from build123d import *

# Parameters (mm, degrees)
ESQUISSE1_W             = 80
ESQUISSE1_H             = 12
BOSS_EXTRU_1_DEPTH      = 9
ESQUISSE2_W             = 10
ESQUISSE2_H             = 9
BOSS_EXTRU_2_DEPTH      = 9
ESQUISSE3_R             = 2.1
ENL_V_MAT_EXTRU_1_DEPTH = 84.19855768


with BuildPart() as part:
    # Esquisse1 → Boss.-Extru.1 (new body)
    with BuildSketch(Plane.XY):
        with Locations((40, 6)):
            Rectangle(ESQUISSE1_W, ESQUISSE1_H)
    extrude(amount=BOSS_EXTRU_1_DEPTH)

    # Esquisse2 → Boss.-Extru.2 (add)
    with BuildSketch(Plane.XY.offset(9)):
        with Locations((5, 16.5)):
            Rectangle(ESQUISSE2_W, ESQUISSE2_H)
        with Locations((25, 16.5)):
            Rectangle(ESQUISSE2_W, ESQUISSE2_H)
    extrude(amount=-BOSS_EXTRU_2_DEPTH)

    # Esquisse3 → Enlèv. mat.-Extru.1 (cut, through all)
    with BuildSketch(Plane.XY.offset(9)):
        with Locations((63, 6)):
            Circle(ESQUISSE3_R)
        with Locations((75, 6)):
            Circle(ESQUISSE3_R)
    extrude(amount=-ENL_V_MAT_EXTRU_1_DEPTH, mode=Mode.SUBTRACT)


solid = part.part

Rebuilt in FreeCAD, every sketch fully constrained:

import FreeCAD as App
import Part
import Sketcher

V = App.Vector
Q = App.Units.Quantity


def add_polygon(sketch, points):
    """Adds a closed chain of lines whose ends are joined by coincident constraints."""
    first, n = sketch.GeometryCount, len(points)
    for a, b in zip(points, points[1:] + points[:1]):
        sketch.addGeometry(Part.LineSegment(App.Vector(*a, 0), App.Vector(*b, 0)), False)
    for i in range(n):
        sketch.addConstraint(Sketcher.Constraint("Coincident", first + i, 2, first + (i + 1) % n, 1))

doc = App.newDocument("Part")
body = doc.addObject("PartDesign::Body", "Body")

# Sketch on XY plane
sketch1 = body.newObject("Sketcher::SketchObject", "Sketch")
sketch1.AttachmentSupport = (doc.getObject("XY_Plane"), [""])
sketch1.MapMode = "FlatFace"
add_polygon(sketch1, [(0, 12), (0, 0), (80, 0), (80, 12)])  # lines 0-3
sketch1.addConstraint(Sketcher.Constraint("Vertical", 0))
sketch1.addConstraint(Sketcher.Constraint("Horizontal", 1))
sketch1.addConstraint(Sketcher.Constraint("Vertical", 2))
sketch1.addConstraint(Sketcher.Constraint("Horizontal", 3))
sketch1.addConstraint(Sketcher.Constraint("Coincident", 0, 2, -1, 1))
sketch1.addConstraint(Sketcher.Constraint("DistanceX", 1, 1, 1, 2, Q("80 mm")))
sketch1.addConstraint(Sketcher.Constraint("DistanceY", 0, 2, 0, 1, Q("12 mm")))
pad1 = body.newObject("PartDesign::Pad", "Pad")
pad1.Profile = sketch1
pad1.Length = 9

# Sketch on XY plane
sketch2 = body.newObject("Sketcher::SketchObject", "Sketch001")
sketch2.AttachmentSupport = (doc.getObject("XY_Plane"), [""])
sketch2.MapMode = "FlatFace"
sketch2.AttachmentOffset = App.Placement(V(0, 0, 9), App.Rotation())
add_polygon(sketch2, [(0, 21), (0, 12), (10, 12), (10, 21)])  # lines 0-3
add_polygon(sketch2, [(20, 21), (20, 12), (30, 12), (30, 21)])  # lines 4-7
sketch2.addConstraint(Sketcher.Constraint("Vertical", 0))
sketch2.addConstraint(Sketcher.Constraint("Horizontal", 1))
sketch2.addConstraint(Sketcher.Constraint("Vertical", 2))
sketch2.addConstraint(Sketcher.Constraint("Horizontal", 3))
sketch2.addConstraint(Sketcher.Constraint("Vertical", 4))
sketch2.addConstraint(Sketcher.Constraint("Horizontal", 5))
sketch2.addConstraint(Sketcher.Constraint("Vertical", 6))
sketch2.addConstraint(Sketcher.Constraint("Horizontal", 7))
sketch2.addConstraint(Sketcher.Constraint("PointOnObject", 0, 2, -2))
sketch2.addConstraint(Sketcher.Constraint("Horizontal", 1, 2, 4, 2))
sketch2.addConstraint(Sketcher.Constraint("Horizontal", 3, 2, 6, 2))
sketch2.addConstraint(Sketcher.Constraint("Equal", 3, 5))
sketch2.addConstraint(Sketcher.Constraint("DistanceX", 1, 1, 1, 2, Q("10 mm")))
sketch2.addConstraint(Sketcher.Constraint("DistanceY", 0, 2, 0, 1, Q("9 mm")))
sketch2.addConstraint(Sketcher.Constraint("DistanceY", -1, 1, 0, 2, Q("12 mm")))
sketch2.addConstraint(Sketcher.Constraint("DistanceX", -1, 1, 4, 2, Q("20 mm")))
pad2 = body.newObject("PartDesign::Pad", "Pad001")
pad2.Profile = sketch2
pad2.Length = 9
pad2.Reversed = True

# Sketch on XY plane
sketch3 = body.newObject("Sketcher::SketchObject", "Sketch002")
sketch3.AttachmentSupport = (doc.getObject("XY_Plane"), [""])
sketch3.MapMode = "FlatFace"
sketch3.AttachmentOffset = App.Placement(V(0, 0, 9), App.Rotation())
sketch3.addGeometry(Part.Circle(V(63, 6, 0), V(0, 0, 1), 2.1), False)
sketch3.addGeometry(Part.Circle(V(75, 6, 0), V(0, 0, 1), 2.1), False)
sketch3.addConstraint(Sketcher.Constraint("Equal", 0, 1))
sketch3.addConstraint(Sketcher.Constraint("Horizontal", 0, 3, 1, 3))
sketch3.addConstraint(Sketcher.Constraint("Diameter", 0, Q("4.2 mm")))
sketch3.addConstraint(Sketcher.Constraint("DistanceX", -1, 1, 0, 3, Q("63 mm")))
sketch3.addConstraint(Sketcher.Constraint("DistanceY", -1, 1, 0, 3, Q("6 mm")))
sketch3.addConstraint(Sketcher.Constraint("DistanceX", -1, 1, 1, 3, Q("75 mm")))
pocket1 = body.newObject("PartDesign::Pocket", "Pocket")
pocket1.Profile = sketch3
pocket1.Type = "ThroughAll"

doc.recompute()
